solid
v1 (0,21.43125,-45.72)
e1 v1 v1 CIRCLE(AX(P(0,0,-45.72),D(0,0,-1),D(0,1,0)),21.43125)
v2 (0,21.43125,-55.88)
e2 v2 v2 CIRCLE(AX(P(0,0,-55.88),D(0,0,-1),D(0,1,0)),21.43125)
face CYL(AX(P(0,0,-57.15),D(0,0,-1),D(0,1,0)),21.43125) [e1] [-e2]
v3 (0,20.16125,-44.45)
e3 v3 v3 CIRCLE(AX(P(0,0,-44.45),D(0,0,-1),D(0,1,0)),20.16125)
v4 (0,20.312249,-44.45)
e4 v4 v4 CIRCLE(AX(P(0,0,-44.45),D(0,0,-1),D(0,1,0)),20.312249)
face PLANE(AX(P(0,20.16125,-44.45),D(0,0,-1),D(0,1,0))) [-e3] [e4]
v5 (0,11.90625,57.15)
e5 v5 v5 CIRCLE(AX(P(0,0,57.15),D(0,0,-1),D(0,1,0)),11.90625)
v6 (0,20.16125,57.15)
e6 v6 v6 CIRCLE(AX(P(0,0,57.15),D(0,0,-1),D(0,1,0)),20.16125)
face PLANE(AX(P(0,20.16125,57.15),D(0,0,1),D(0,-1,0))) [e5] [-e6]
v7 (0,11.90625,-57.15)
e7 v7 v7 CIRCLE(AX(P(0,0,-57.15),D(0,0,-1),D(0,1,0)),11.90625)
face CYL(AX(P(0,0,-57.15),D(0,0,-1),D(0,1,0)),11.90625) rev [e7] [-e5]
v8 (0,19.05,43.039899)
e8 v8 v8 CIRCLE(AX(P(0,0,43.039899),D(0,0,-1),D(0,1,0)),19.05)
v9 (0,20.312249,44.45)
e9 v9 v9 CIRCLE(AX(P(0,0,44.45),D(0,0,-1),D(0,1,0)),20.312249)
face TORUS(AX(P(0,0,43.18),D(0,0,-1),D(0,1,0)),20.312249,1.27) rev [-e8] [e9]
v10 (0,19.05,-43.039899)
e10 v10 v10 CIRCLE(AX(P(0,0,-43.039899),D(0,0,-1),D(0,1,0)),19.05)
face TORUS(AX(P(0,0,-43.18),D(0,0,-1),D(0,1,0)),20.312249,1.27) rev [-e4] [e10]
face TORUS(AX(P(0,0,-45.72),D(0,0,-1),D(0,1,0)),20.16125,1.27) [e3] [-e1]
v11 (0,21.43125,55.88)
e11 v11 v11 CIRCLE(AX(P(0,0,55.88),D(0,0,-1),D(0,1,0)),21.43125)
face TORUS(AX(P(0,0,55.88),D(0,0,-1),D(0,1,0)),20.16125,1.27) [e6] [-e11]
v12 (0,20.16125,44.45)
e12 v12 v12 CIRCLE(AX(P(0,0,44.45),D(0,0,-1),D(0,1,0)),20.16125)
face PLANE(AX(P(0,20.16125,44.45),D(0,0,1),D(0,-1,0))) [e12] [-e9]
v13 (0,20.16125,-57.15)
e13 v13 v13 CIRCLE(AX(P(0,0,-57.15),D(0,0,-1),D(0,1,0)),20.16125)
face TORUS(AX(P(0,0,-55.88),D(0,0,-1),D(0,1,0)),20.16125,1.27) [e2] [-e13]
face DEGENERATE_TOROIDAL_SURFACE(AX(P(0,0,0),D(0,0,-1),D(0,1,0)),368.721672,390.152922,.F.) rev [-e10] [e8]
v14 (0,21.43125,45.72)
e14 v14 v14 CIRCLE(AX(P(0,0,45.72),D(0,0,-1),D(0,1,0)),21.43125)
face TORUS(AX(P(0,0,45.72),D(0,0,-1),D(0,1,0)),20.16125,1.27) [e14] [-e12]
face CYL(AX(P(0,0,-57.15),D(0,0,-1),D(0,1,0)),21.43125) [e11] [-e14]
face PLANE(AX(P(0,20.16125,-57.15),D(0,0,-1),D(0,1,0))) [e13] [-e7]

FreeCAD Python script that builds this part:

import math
import FreeCAD as App
import Part
import Sketcher
Q = App.Units.Quantity

doc = App.newDocument("Part")
body = doc.addObject("PartDesign::Body", "Body")

# Sketch on YZ plane
sketch1 = body.newObject("Sketcher::SketchObject", "Sketch")
sketch1.AttachmentSupport = (doc.getObject("YZ_Plane"), [""])
sketch1.MapMode = "FlatFace"
sketch1.addGeometry(Part.LineSegment(App.Vector(20.16, 57.15, 0), App.Vector(11.91, 57.15, 0)), False)
sketch1.addGeometry(Part.LineSegment(App.Vector(11.91, 57.15, 0), App.Vector(11.91, -57.15, 0)), False)
sketch1.addGeometry(Part.LineSegment(App.Vector(11.91, -57.15, 0), App.Vector(20.16, -57.15, 0)), False)
sketch1.addGeometry(Part.ArcOfCircle(Part.Circle(App.Vector(20.16, -55.88, 0), App.Vector(0, 0, 1), 1.27), math.radians(-90), math.radians(0)), False)
sketch1.addGeometry(Part.LineSegment(App.Vector(21.43, -55.88, 0), App.Vector(21.43, -45.72, 0)), False)
sketch1.addGeometry(Part.ArcOfCircle(Part.Circle(App.Vector(20.16, -45.72, 0), App.Vector(0, 0, 1), 1.27), math.radians(0), math.radians(90)), False)
sketch1.addGeometry(Part.LineSegment(App.Vector(20.16, -44.45, 0), App.Vector(20.31, -44.45, 0)), False)
sketch1.addGeometry(Part.ArcOfCircle(Part.Circle(App.Vector(20.31, -43.18, 0), App.Vector(0, 0, 1), 1.27), math.radians(174), math.radians(270)), False)
sketch1.addGeometry(Part.ArcOfCircle(Part.Circle(App.Vector(-368.72, 0, 0), App.Vector(0, 0, 1), 390.15), math.radians(-6.33), math.radians(6.33)), False)
sketch1.addGeometry(Part.ArcOfCircle(Part.Circle(App.Vector(20.31, 43.18, 0), App.Vector(0, 0, 1), 1.27), math.radians(90), math.radians(186)), False)
sketch1.addGeometry(Part.LineSegment(App.Vector(20.31, 44.45, 0), App.Vector(20.16, 44.45, 0)), False)
sketch1.addGeometry(Part.ArcOfCircle(Part.Circle(App.Vector(20.16, 45.72, 0), App.Vector(0, 0, 1), 1.27), math.radians(-90), math.radians(0)), False)
sketch1.addGeometry(Part.LineSegment(App.Vector(21.43, 45.72, 0), App.Vector(21.43, 55.88, 0)), False)
sketch1.addGeometry(Part.ArcOfCircle(Part.Circle(App.Vector(20.16, 55.88, 0), App.Vector(0, 0, 1), 1.27), math.radians(0), math.radians(90)), False)
sketch1.addConstraint(Sketcher.Constraint("Coincident", 0, 2, 1, 1))
sketch1.addConstraint(Sketcher.Constraint("Coincident", 1, 2, 2, 1))
sketch1.addConstraint(Sketcher.Constraint("Tangent", 2, 2, 3, 1))
sketch1.addConstraint(Sketcher.Constraint("Tangent", 3, 2, 4, 1))
sketch1.addConstraint(Sketcher.Constraint("Tangent", 4, 2, 5, 1))
sketch1.addConstraint(Sketcher.Constraint("Tangent", 5, 2, 6, 1))
sketch1.addConstraint(Sketcher.Constraint("Tangent", 6, 2, 7, 2))
sketch1.addConstraint(Sketcher.Constraint("Tangent", 7, 1, 8, 1))
sketch1.addConstraint(Sketcher.Constraint("Tangent", 8, 2, 9, 2))
sketch1.addConstraint(Sketcher.Constraint("Tangent", 9, 1, 10, 1))
sketch1.addConstraint(Sketcher.Constraint("Tangent", 10, 2, 11, 1))
sketch1.addConstraint(Sketcher.Constraint("Tangent", 11, 2, 12, 1))
sketch1.addConstraint(Sketcher.Constraint("Tangent", 12, 2, 13, 1))
sketch1.addConstraint(Sketcher.Constraint("Tangent", 13, 2, 0, 1))
sketch1.addConstraint(Sketcher.Constraint("Horizontal", 0))
sketch1.addConstraint(Sketcher.Constraint("Vertical", 1))
sketch1.addConstraint(Sketcher.Constraint("Horizontal", 2))
sketch1.addConstraint(Sketcher.Constraint("Vertical", 4))
sketch1.addConstraint(Sketcher.Constraint("Horizontal", 6))
sketch1.addConstraint(Sketcher.Constraint("Horizontal", 10))
sketch1.addConstraint(Sketcher.Constraint("Vertical", 12))
sketch1.addConstraint(Sketcher.Constraint("Equal", 3, 5))
sketch1.addConstraint(Sketcher.Constraint("Equal", 5, 7))
sketch1.addConstraint(Sketcher.Constraint("Equal", 7, 9))
sketch1.addConstraint(Sketcher.Constraint("Equal", 9, 11))
sketch1.addConstraint(Sketcher.Constraint("Equal", 11, 13))
sketch1.addConstraint(Sketcher.Constraint("Symmetric", 7, 3, 9, 3, -1))
sketch1.addConstraint(Sketcher.Constraint("Symmetric", 3, 3, 13, 3, -1))
sketch1.addConstraint(Sketcher.Constraint("Radius", 3, Q("0.05 in")))
sketch1.addConstraint(Sketcher.Constraint("DistanceY", 1, 2, 1, 1, Q("4.5 in")))
sketch1.addConstraint(Sketcher.Constraint("DistanceY", 4, 1, 4, 2, Q("0.4 in")))
sketch1.addConstraint(Sketcher.Constraint("DistanceX", 0, 2, 0, 1, Q("0.325 in")))
sketch1.addConstraint(Sketcher.Constraint("DistanceX", -1, 1, 7, 1, Q("0.75 in")))
sketch1.addConstraint(Sketcher.Constraint("DistanceX", -1, 1, 0, 2, Q("0.46875 in")))
sketch1.addConstraint(Sketcher.Constraint("Radius", 8, 390.152922))
revolution = body.newObject("PartDesign::Revolution", "Revolution")
revolution.Profile = sketch1
revolution.ReferenceAxis = (sketch1, ["V_Axis"])
revolution.Angle = 360

doc.recompute()
